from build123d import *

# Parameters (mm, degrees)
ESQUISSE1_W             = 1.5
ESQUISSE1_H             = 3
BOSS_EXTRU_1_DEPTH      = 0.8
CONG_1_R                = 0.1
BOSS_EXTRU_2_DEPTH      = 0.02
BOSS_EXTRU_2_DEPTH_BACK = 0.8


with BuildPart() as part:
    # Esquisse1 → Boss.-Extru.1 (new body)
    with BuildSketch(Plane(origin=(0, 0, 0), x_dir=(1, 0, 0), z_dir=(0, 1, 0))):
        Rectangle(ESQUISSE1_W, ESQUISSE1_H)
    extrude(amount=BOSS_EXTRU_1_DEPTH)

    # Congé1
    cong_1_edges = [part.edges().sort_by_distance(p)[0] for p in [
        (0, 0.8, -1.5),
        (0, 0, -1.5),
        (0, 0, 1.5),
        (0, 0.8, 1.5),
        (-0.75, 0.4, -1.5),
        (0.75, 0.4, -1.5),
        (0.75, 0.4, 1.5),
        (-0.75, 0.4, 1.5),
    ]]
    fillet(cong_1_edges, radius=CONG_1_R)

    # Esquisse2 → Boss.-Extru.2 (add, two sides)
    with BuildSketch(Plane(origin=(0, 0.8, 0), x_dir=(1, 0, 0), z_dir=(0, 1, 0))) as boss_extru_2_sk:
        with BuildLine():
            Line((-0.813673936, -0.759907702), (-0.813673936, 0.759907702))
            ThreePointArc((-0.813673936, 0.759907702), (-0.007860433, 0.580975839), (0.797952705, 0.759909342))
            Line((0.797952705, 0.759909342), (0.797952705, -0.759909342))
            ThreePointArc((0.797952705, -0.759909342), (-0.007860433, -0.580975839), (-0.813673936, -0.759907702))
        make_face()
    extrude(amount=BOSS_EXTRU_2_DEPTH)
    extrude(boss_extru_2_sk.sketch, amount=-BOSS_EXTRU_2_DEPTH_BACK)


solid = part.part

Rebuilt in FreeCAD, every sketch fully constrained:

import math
import FreeCAD as App
import Part
import Sketcher
Q = App.Units.Quantity


def edges_at(feature, points):
    """Names of the edges that pass closest to the given points."""
    edges = feature.Shape.Edges
    near = lambda p: min(range(len(edges)), key=lambda i: edges[i].distToShape(Part.Vertex(*p))[0])
    return sorted({f"Edge{near(p) + 1}" for p in points})


def add_polygon(sketch, points):
    """Adds a closed chain of lines whose ends are joined by coincident constraints."""
    first, n = sketch.GeometryCount, len(points)
    for a, b in zip(points, points[1:] + points[:1]):
        sketch.addGeometry(Part.LineSegment(App.Vector(*a, 0), App.Vector(*b, 0)), False)
    for i in range(n):
        sketch.addConstraint(Sketcher.Constraint("Coincident", first + i, 2, first + (i + 1) % n, 1))

doc = App.newDocument("Part")
body = doc.addObject("PartDesign::Body", "Body")

# Sketch on XZ plane
sketch1 = doc.addObject("Sketcher::SketchObject", "Sketch")
body.addObject(sketch1)
sketch1.AttachmentSupport = (doc.XZ_Plane, [""])
sketch1.MapMode = "FlatFace"
add_polygon(sketch1, [(-0.75, -1.5), (-0.75, 1.5), (0.75, 1.5), (0.75, -1.5)])  # lines 0-3
sketch1.addConstraint(Sketcher.Constraint("Vertical", 0))
sketch1.addConstraint(Sketcher.Constraint("Horizontal", 1))
sketch1.addConstraint(Sketcher.Constraint("Vertical", 2))
sketch1.addConstraint(Sketcher.Constraint("Horizontal", 3))
sketch1.addConstraint(Sketcher.Constraint("Symmetric", 0, 2, 2, 2, -1, 1))
sketch1.addConstraint(Sketcher.Constraint("DistanceY", 0, 1, 0, 2, Q("3 mm")))
sketch1.addConstraint(Sketcher.Constraint("DistanceX", 1, 1, 1, 2, Q("1.5 mm")))
pad1 = doc.addObject("PartDesign::Pad", "Pad")
body.addObject(pad1)
pad1.Profile = sketch1
pad1.Length = 0.8
pad1.Reversed = True
doc.recompute()

fillet = doc.addObject("PartDesign::Fillet", "Fillet")
body.addObject(fillet)
fillet.Base = (pad1, edges_at(pad1, [
    (0, 0.8, -1.5),
    (0, 0, -1.5),
    (0, 0, 1.5),
    (0, 0.8, 1.5),
    (-0.75, 0.4, -1.5),
    (0.75, 0.4, -1.5),
    (0.75, 0.4, 1.5),
    (-0.75, 0.4, 1.5),
]))
fillet.Radius = 0.1

# Sketch on XZ plane
sketch2 = doc.addObject("Sketcher::SketchObject", "Sketch001")
body.addObject(sketch2)
sketch2.AttachmentSupport = (doc.XZ_Plane, [""])
sketch2.MapMode = "FlatFace"
sketch2.AttachmentOffset = App.Placement(App.Vector(0, 0, -0.8), App.Rotation())
sketch2.addGeometry(Part.LineSegment(App.Vector(-0.813674, -0.759908, 0), App.Vector(-0.813674, 0.759908, 0)), False)
sketch2.addGeometry(Part.ArcOfCircle(Part.Circle(App.Vector(-0.007862, 2.48491, 0), App.Vector(0, 0, 1), 1.903934), math.radians(-115.038999), math.radians(-64.960885)), False)
sketch2.addGeometry(Part.LineSegment(App.Vector(0.797953, 0.759909, 0), App.Vector(0.797953, -0.759909, 0)), False)
sketch2.addGeometry(Part.ArcOfCircle(Part.Circle(App.Vector(-0.007862, -2.48491, 0), App.Vector(0, 0, 1), 1.903934), math.radians(64.960885), math.radians(115.038999)), False)
sketch2.addConstraint(Sketcher.Constraint("Coincident", 0, 2, 1, 1))
sketch2.addConstraint(Sketcher.Constraint("Coincident", 1, 2, 2, 1))
sketch2.addConstraint(Sketcher.Constraint("Coincident", 2, 2, 3, 1))
sketch2.addConstraint(Sketcher.Constraint("Coincident", 3, 2, 0, 1))
sketch2.addConstraint(Sketcher.Constraint("Vertical", 0))
sketch2.addConstraint(Sketcher.Constraint("Vertical", 2))
sketch2.addConstraint(Sketcher.Constraint("Equal", 1, 3))
sketch2.addConstraint(Sketcher.Constraint("Symmetric", 1, 3, 3, 3, -1))
sketch2.addConstraint(Sketcher.Constraint("Horizontal", 0, 2, 1, 2))
sketch2.addConstraint(Sketcher.Constraint("Radius", 1, Q("1.903934 mm")))
sketch2.addConstraint(Sketcher.Constraint("DistanceY", 1, 2, 1, 3, Q("1.725 mm")))
sketch2.addConstraint(Sketcher.Constraint("DistanceY", 2, 2, 2, 1, Q("1.519819 mm")))
sketch2.addConstraint(Sketcher.Constraint("DistanceX", 1, 3, -1, 1, Q("0.007862 mm")))
pad2 = doc.addObject("PartDesign::Pad", "Pad001")
body.addObject(pad2)
pad2.Profile = sketch2
pad2.Type = "TwoLengths"
pad2.Length = 0.02
pad2.Length2 = 0.8
pad2.Reversed = True

doc.recompute()
